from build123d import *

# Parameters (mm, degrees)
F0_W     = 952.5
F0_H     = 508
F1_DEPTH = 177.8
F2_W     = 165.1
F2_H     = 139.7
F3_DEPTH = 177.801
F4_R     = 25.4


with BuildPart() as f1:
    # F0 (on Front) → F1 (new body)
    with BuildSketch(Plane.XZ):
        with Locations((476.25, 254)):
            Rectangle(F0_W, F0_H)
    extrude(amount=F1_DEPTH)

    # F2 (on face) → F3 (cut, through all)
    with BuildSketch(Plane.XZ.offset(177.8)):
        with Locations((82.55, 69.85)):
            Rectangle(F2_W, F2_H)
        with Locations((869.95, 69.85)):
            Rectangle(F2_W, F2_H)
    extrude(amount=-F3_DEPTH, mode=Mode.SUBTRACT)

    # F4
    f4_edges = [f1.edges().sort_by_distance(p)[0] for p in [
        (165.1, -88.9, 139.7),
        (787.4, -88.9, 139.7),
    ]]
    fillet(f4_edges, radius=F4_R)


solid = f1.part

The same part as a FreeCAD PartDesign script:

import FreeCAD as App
import Part
import Sketcher
from FreeCAD import Vector
Q = App.Units.Quantity


def edges_at(feature, points):
    """Names of the edges that pass closest to the given points."""
    edges = feature.Shape.Edges
    near = lambda p: min(range(len(edges)), key=lambda i: edges[i].distToShape(Part.Vertex(*p))[0])
    return sorted({f"Edge{near(p) + 1}" for p in points})

doc = App.newDocument("Part")
body = doc.addObject("PartDesign::Body", "Body")

# Sketch on XZ plane
sketch1 = doc.addObject("Sketcher::SketchObject", "Sketch")
body.addObject(sketch1)
sketch1.AttachmentSupport = (doc.XZ_Plane, [""])
sketch1.MapMode = "FlatFace"
sketch1.addGeometry(Part.LineSegment(Vector(0, 508, 0), Vector(0, 0, 0)), False)
sketch1.addGeometry(Part.LineSegment(Vector(0, 0, 0), Vector(952, 0, 0)), False)
sketch1.addGeometry(Part.LineSegment(Vector(952, 0, 0), Vector(952, 508, 0)), False)
sketch1.addGeometry(Part.LineSegment(Vector(952, 508, 0), Vector(0, 508, 0)), False)
sketch1.addConstraint(Sketcher.Constraint("Coincident", 0, 2, 1, 1))
sketch1.addConstraint(Sketcher.Constraint("Coincident", 1, 2, 2, 1))
sketch1.addConstraint(Sketcher.Constraint("Coincident", 2, 2, 3, 1))
sketch1.addConstraint(Sketcher.Constraint("Coincident", 3, 2, 0, 1))
sketch1.addConstraint(Sketcher.Constraint("Vertical", 0))
sketch1.addConstraint(Sketcher.Constraint("Horizontal", 1))
sketch1.addConstraint(Sketcher.Constraint("Vertical", 2))
sketch1.addConstraint(Sketcher.Constraint("Horizontal", 3))
sketch1.addConstraint(Sketcher.Constraint("Coincident", 0, 2, -1, 1))
sketch1.addConstraint(Sketcher.Constraint("DistanceY", 0, 2, 0, 1, Q("20 in")))
sketch1.addConstraint(Sketcher.Constraint("DistanceX", 1, 1, 1, 2, Q("37.5 in")))
pad1 = doc.addObject("PartDesign::Pad", "Pad")
body.addObject(pad1)
pad1.Profile = sketch1
pad1.Length = Q("7 in")

# Sketch on XZ plane
sketch2 = doc.addObject("Sketcher::SketchObject", "Sketch001")
body.addObject(sketch2)
sketch2.AttachmentSupport = (doc.XZ_Plane, [""])
sketch2.MapMode = "FlatFace"
sketch2.AttachmentOffset = App.Placement(Vector(0, 0, 7 * 25.4), App.Rotation())
sketch2.addGeometry(Part.LineSegment(Vector(0, 140, 0), Vector(0, 0, 0)), False)
sketch2.addGeometry(Part.LineSegment(Vector(0, 0, 0), Vector(165, 0, 0)), False)
sketch2.addGeometry(Part.LineSegment(Vector(165, 0, 0), Vector(165, 140, 0)), False)
sketch2.addGeometry(Part.LineSegment(Vector(165, 140, 0), Vector(0, 140, 0)), False)
sketch2.addGeometry(Part.LineSegment(Vector(787, 140, 0), Vector(787, 0, 0)), False)
sketch2.addGeometry(Part.LineSegment(Vector(787, 0, 0), Vector(952, 0, 0)), False)
sketch2.addGeometry(Part.LineSegment(Vector(952, 0, 0), Vector(952, 140, 0)), False)
sketch2.addGeometry(Part.LineSegment(Vector(952, 140, 0), Vector(787, 140, 0)), False)
sketch2.addConstraint(Sketcher.Constraint("Coincident", 0, 2, 1, 1))
sketch2.addConstraint(Sketcher.Constraint("Coincident", 1, 2, 2, 1))
sketch2.addConstraint(Sketcher.Constraint("Coincident", 2, 2, 3, 1))
sketch2.addConstraint(Sketcher.Constraint("Coincident", 3, 2, 0, 1))
sketch2.addConstraint(Sketcher.Constraint("Coincident", 4, 2, 5, 1))
sketch2.addConstraint(Sketcher.Constraint("Coincident", 5, 2, 6, 1))
sketch2.addConstraint(Sketcher.Constraint("Coincident", 6, 2, 7, 1))
sketch2.addConstraint(Sketcher.Constraint("Coincident", 7, 2, 4, 1))
sketch2.addConstraint(Sketcher.Constraint("Vertical", 0))
sketch2.addConstraint(Sketcher.Constraint("Horizontal", 1))
sketch2.addConstraint(Sketcher.Constraint("Vertical", 2))
sketch2.addConstraint(Sketcher.Constraint("Horizontal", 3))
sketch2.addConstraint(Sketcher.Constraint("Vertical", 4))
sketch2.addConstraint(Sketcher.Constraint("Horizontal", 5))
sketch2.addConstraint(Sketcher.Constraint("Vertical", 6))
sketch2.addConstraint(Sketcher.Constraint("Horizontal", 7))
sketch2.addConstraint(Sketcher.Constraint("Coincident", 0, 2, -1, 1))
sketch2.addConstraint(Sketcher.Constraint("PointOnObject", 4, 2, -1))
sketch2.addConstraint(Sketcher.Constraint("Horizontal", 3, 2, 6, 2))
sketch2.addConstraint(Sketcher.Constraint("Equal", 3, 5))
sketch2.addConstraint(Sketcher.Constraint("DistanceX", 1, 1, 1, 2, Q("6.5 in")))
sketch2.addConstraint(Sketcher.Constraint("DistanceY", 0, 2, 0, 1, Q("5.5 in")))
sketch2.addConstraint(Sketcher.Constraint("DistanceX", -1, 1, 4, 2, Q("31 in")))
pocket1 = doc.addObject("PartDesign::Pocket", "Pocket")
body.addObject(pocket1)
pocket1.Profile = sketch2
pocket1.Type = "ThroughAll"
doc.recompute()

fillet = doc.addObject("PartDesign::Fillet", "Fillet")
body.addObject(fillet)
fillet.Base = (pocket1, edges_at(pocket1, [(165.1, -88.9, 139.7), (787.4, -88.9, 139.7)]))
fillet.Radius = Q("1 in")

doc.recompute()
